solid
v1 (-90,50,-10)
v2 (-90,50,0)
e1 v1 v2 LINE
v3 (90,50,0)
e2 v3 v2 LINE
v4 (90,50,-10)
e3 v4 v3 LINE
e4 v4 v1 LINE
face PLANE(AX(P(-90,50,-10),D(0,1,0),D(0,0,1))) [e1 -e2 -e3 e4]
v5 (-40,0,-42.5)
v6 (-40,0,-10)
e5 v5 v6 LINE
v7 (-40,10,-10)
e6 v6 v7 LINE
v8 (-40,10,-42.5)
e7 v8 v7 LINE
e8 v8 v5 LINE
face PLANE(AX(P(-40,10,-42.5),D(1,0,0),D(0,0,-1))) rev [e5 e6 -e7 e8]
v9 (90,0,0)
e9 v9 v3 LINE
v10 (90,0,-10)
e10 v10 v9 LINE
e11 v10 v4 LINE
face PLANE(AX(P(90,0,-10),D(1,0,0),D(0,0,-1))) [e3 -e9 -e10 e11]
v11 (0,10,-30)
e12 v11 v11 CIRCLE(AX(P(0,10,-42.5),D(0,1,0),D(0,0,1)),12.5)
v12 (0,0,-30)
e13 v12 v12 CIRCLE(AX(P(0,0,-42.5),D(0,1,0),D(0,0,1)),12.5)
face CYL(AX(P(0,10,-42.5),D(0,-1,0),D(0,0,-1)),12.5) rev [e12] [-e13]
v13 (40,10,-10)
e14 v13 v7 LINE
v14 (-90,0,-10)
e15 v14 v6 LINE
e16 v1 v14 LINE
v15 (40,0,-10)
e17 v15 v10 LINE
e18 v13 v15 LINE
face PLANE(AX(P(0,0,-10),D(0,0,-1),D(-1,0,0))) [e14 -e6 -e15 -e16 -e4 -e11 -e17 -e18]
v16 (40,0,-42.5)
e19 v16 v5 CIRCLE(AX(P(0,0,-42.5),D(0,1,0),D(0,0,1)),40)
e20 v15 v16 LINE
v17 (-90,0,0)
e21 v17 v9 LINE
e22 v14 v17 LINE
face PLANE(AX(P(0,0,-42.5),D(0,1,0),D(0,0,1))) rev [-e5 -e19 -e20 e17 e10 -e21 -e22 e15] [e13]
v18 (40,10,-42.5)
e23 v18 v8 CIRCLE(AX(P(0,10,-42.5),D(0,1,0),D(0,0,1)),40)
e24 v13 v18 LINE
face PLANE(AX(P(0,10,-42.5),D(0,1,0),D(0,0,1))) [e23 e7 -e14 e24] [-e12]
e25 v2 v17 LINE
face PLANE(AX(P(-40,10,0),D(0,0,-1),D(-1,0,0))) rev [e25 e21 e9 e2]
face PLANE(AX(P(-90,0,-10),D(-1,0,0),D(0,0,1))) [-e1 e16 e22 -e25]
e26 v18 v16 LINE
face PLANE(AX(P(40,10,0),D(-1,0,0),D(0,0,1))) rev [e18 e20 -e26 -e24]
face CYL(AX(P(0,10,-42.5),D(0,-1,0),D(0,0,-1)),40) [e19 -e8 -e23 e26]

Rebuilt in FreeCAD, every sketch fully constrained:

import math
import FreeCAD as App
import Part
import Sketcher

V = App.Vector

doc = App.newDocument("Part")
params = doc.addObject("Spreadsheet::Sheet", "Params")
for row, (alias, value) in enumerate([
    ("sketch1_diameter", "25 mm"),
    ("sketch1_radius", "40 mm"),
    ("sketch1_height", "42.5 mm"),
    ("pad1_length", "10 mm"),
    ("sketch2_width", "180 mm"),
    ("sketch2_height", "50 mm"),
    ("pad2_length", "10 mm"),
], start=1):
    params.set(f"A{row}", alias)
    params.set(f"B{row}", "=" + value)
    params.setAlias(f"B{row}", alias)

body = doc.addObject("PartDesign::Body", "Body")

# Sketch on XZ plane
sketch1 = body.newObject("Sketcher::SketchObject", "Sketch")
sketch1.AttachmentSupport = (doc.getObject("XZ_Plane"), [""])
sketch1.MapMode = "FlatFace"
sketch1.addGeometry([
    Part.LineSegment(V(-40, 0, 0), V(40, 0, 0)),  # 0
    Part.LineSegment(V(40, 0, 0), V(40, -42.5, 0)),  # 1
    Part.ArcOfCircle(Part.Circle(V(0, -42.5, 0), V(0, 0, 1), 40), math.radians(180), math.radians(360)),  # 2
    Part.LineSegment(V(-40, -42.5, 0), V(-40, 0, 0)),  # 3
    Part.Circle(V(0, -42.5, 0), V(0, 0, 1), 12.5),  # 4
], False)
sketch1.addConstraint([
    Sketcher.Constraint("Coincident", 0, 2, 1, 1),
    Sketcher.Constraint("Tangent", 1, 2, 2, 2),
    Sketcher.Constraint("Tangent", 2, 1, 3, 1),
    Sketcher.Constraint("Coincident", 3, 2, 0, 1),
    Sketcher.Constraint("Horizontal", 0),
    Sketcher.Constraint("Vertical", 1),
    Sketcher.Constraint("Vertical", 3),
    Sketcher.Constraint("Coincident", 4, 3, 2, 3),
    Sketcher.Constraint("Symmetric", 0, 2, 3, 2, -1, 1),
    Sketcher.Constraint("Diameter", 4, 25.0),
    Sketcher.Constraint("Radius", 2, 40.0),
    Sketcher.Constraint("DistanceY", 1, 2, 1, 1, 42.5),
])
sketch1.setExpression("Constraints[9]", "Params.sketch1_diameter")
sketch1.setExpression("Constraints[10]", "Params.sketch1_radius")
sketch1.setExpression("Constraints[11]", "Params.sketch1_height")
pad1 = body.newObject("PartDesign::Pad", "Pad")
pad1.Profile = sketch1
pad1.setExpression("Length", "Params.pad1_length")
pad1.Reversed = True

# Sketch on XY plane
sketch2 = body.newObject("Sketcher::SketchObject", "Sketch001")
sketch2.AttachmentSupport = (doc.getObject("XY_Plane"), [""])
sketch2.MapMode = "FlatFace"
sketch2.addGeometry([
    Part.LineSegment(V(-90, 50, 0), V(-90, 0, 0)),
    Part.LineSegment(V(-90, 0, 0), V(90, 0, 0)),
    Part.LineSegment(V(90, 0, 0), V(90, 50, 0)),
    Part.LineSegment(V(90, 50, 0), V(-90, 50, 0)),
], False)
sketch2.addConstraint([
    Sketcher.Constraint("Coincident", 0, 2, 1, 1),
    Sketcher.Constraint("Coincident", 1, 2, 2, 1),
    Sketcher.Constraint("Coincident", 2, 2, 3, 1),
    Sketcher.Constraint("Coincident", 3, 2, 0, 1),
    Sketcher.Constraint("Vertical", 0),
    Sketcher.Constraint("Horizontal", 1),
    Sketcher.Constraint("Vertical", 2),
    Sketcher.Constraint("Horizontal", 3),
    Sketcher.Constraint("Symmetric", 0, 2, 1, 2, -1, 1),
    Sketcher.Constraint("DistanceX", 1, 1, 1, 2, 180.0),
    Sketcher.Constraint("DistanceY", 0, 2, 0, 1, 50.0),
])
sketch2.setExpression("Constraints[9]", "Params.sketch2_width")
sketch2.setExpression("Constraints[10]", "Params.sketch2_height")
pad2 = body.newObject("PartDesign::Pad", "Pad001")
pad2.Profile = sketch2
pad2.setExpression("Length", "Params.pad2_length")
pad2.Reversed = True

doc.recompute()
